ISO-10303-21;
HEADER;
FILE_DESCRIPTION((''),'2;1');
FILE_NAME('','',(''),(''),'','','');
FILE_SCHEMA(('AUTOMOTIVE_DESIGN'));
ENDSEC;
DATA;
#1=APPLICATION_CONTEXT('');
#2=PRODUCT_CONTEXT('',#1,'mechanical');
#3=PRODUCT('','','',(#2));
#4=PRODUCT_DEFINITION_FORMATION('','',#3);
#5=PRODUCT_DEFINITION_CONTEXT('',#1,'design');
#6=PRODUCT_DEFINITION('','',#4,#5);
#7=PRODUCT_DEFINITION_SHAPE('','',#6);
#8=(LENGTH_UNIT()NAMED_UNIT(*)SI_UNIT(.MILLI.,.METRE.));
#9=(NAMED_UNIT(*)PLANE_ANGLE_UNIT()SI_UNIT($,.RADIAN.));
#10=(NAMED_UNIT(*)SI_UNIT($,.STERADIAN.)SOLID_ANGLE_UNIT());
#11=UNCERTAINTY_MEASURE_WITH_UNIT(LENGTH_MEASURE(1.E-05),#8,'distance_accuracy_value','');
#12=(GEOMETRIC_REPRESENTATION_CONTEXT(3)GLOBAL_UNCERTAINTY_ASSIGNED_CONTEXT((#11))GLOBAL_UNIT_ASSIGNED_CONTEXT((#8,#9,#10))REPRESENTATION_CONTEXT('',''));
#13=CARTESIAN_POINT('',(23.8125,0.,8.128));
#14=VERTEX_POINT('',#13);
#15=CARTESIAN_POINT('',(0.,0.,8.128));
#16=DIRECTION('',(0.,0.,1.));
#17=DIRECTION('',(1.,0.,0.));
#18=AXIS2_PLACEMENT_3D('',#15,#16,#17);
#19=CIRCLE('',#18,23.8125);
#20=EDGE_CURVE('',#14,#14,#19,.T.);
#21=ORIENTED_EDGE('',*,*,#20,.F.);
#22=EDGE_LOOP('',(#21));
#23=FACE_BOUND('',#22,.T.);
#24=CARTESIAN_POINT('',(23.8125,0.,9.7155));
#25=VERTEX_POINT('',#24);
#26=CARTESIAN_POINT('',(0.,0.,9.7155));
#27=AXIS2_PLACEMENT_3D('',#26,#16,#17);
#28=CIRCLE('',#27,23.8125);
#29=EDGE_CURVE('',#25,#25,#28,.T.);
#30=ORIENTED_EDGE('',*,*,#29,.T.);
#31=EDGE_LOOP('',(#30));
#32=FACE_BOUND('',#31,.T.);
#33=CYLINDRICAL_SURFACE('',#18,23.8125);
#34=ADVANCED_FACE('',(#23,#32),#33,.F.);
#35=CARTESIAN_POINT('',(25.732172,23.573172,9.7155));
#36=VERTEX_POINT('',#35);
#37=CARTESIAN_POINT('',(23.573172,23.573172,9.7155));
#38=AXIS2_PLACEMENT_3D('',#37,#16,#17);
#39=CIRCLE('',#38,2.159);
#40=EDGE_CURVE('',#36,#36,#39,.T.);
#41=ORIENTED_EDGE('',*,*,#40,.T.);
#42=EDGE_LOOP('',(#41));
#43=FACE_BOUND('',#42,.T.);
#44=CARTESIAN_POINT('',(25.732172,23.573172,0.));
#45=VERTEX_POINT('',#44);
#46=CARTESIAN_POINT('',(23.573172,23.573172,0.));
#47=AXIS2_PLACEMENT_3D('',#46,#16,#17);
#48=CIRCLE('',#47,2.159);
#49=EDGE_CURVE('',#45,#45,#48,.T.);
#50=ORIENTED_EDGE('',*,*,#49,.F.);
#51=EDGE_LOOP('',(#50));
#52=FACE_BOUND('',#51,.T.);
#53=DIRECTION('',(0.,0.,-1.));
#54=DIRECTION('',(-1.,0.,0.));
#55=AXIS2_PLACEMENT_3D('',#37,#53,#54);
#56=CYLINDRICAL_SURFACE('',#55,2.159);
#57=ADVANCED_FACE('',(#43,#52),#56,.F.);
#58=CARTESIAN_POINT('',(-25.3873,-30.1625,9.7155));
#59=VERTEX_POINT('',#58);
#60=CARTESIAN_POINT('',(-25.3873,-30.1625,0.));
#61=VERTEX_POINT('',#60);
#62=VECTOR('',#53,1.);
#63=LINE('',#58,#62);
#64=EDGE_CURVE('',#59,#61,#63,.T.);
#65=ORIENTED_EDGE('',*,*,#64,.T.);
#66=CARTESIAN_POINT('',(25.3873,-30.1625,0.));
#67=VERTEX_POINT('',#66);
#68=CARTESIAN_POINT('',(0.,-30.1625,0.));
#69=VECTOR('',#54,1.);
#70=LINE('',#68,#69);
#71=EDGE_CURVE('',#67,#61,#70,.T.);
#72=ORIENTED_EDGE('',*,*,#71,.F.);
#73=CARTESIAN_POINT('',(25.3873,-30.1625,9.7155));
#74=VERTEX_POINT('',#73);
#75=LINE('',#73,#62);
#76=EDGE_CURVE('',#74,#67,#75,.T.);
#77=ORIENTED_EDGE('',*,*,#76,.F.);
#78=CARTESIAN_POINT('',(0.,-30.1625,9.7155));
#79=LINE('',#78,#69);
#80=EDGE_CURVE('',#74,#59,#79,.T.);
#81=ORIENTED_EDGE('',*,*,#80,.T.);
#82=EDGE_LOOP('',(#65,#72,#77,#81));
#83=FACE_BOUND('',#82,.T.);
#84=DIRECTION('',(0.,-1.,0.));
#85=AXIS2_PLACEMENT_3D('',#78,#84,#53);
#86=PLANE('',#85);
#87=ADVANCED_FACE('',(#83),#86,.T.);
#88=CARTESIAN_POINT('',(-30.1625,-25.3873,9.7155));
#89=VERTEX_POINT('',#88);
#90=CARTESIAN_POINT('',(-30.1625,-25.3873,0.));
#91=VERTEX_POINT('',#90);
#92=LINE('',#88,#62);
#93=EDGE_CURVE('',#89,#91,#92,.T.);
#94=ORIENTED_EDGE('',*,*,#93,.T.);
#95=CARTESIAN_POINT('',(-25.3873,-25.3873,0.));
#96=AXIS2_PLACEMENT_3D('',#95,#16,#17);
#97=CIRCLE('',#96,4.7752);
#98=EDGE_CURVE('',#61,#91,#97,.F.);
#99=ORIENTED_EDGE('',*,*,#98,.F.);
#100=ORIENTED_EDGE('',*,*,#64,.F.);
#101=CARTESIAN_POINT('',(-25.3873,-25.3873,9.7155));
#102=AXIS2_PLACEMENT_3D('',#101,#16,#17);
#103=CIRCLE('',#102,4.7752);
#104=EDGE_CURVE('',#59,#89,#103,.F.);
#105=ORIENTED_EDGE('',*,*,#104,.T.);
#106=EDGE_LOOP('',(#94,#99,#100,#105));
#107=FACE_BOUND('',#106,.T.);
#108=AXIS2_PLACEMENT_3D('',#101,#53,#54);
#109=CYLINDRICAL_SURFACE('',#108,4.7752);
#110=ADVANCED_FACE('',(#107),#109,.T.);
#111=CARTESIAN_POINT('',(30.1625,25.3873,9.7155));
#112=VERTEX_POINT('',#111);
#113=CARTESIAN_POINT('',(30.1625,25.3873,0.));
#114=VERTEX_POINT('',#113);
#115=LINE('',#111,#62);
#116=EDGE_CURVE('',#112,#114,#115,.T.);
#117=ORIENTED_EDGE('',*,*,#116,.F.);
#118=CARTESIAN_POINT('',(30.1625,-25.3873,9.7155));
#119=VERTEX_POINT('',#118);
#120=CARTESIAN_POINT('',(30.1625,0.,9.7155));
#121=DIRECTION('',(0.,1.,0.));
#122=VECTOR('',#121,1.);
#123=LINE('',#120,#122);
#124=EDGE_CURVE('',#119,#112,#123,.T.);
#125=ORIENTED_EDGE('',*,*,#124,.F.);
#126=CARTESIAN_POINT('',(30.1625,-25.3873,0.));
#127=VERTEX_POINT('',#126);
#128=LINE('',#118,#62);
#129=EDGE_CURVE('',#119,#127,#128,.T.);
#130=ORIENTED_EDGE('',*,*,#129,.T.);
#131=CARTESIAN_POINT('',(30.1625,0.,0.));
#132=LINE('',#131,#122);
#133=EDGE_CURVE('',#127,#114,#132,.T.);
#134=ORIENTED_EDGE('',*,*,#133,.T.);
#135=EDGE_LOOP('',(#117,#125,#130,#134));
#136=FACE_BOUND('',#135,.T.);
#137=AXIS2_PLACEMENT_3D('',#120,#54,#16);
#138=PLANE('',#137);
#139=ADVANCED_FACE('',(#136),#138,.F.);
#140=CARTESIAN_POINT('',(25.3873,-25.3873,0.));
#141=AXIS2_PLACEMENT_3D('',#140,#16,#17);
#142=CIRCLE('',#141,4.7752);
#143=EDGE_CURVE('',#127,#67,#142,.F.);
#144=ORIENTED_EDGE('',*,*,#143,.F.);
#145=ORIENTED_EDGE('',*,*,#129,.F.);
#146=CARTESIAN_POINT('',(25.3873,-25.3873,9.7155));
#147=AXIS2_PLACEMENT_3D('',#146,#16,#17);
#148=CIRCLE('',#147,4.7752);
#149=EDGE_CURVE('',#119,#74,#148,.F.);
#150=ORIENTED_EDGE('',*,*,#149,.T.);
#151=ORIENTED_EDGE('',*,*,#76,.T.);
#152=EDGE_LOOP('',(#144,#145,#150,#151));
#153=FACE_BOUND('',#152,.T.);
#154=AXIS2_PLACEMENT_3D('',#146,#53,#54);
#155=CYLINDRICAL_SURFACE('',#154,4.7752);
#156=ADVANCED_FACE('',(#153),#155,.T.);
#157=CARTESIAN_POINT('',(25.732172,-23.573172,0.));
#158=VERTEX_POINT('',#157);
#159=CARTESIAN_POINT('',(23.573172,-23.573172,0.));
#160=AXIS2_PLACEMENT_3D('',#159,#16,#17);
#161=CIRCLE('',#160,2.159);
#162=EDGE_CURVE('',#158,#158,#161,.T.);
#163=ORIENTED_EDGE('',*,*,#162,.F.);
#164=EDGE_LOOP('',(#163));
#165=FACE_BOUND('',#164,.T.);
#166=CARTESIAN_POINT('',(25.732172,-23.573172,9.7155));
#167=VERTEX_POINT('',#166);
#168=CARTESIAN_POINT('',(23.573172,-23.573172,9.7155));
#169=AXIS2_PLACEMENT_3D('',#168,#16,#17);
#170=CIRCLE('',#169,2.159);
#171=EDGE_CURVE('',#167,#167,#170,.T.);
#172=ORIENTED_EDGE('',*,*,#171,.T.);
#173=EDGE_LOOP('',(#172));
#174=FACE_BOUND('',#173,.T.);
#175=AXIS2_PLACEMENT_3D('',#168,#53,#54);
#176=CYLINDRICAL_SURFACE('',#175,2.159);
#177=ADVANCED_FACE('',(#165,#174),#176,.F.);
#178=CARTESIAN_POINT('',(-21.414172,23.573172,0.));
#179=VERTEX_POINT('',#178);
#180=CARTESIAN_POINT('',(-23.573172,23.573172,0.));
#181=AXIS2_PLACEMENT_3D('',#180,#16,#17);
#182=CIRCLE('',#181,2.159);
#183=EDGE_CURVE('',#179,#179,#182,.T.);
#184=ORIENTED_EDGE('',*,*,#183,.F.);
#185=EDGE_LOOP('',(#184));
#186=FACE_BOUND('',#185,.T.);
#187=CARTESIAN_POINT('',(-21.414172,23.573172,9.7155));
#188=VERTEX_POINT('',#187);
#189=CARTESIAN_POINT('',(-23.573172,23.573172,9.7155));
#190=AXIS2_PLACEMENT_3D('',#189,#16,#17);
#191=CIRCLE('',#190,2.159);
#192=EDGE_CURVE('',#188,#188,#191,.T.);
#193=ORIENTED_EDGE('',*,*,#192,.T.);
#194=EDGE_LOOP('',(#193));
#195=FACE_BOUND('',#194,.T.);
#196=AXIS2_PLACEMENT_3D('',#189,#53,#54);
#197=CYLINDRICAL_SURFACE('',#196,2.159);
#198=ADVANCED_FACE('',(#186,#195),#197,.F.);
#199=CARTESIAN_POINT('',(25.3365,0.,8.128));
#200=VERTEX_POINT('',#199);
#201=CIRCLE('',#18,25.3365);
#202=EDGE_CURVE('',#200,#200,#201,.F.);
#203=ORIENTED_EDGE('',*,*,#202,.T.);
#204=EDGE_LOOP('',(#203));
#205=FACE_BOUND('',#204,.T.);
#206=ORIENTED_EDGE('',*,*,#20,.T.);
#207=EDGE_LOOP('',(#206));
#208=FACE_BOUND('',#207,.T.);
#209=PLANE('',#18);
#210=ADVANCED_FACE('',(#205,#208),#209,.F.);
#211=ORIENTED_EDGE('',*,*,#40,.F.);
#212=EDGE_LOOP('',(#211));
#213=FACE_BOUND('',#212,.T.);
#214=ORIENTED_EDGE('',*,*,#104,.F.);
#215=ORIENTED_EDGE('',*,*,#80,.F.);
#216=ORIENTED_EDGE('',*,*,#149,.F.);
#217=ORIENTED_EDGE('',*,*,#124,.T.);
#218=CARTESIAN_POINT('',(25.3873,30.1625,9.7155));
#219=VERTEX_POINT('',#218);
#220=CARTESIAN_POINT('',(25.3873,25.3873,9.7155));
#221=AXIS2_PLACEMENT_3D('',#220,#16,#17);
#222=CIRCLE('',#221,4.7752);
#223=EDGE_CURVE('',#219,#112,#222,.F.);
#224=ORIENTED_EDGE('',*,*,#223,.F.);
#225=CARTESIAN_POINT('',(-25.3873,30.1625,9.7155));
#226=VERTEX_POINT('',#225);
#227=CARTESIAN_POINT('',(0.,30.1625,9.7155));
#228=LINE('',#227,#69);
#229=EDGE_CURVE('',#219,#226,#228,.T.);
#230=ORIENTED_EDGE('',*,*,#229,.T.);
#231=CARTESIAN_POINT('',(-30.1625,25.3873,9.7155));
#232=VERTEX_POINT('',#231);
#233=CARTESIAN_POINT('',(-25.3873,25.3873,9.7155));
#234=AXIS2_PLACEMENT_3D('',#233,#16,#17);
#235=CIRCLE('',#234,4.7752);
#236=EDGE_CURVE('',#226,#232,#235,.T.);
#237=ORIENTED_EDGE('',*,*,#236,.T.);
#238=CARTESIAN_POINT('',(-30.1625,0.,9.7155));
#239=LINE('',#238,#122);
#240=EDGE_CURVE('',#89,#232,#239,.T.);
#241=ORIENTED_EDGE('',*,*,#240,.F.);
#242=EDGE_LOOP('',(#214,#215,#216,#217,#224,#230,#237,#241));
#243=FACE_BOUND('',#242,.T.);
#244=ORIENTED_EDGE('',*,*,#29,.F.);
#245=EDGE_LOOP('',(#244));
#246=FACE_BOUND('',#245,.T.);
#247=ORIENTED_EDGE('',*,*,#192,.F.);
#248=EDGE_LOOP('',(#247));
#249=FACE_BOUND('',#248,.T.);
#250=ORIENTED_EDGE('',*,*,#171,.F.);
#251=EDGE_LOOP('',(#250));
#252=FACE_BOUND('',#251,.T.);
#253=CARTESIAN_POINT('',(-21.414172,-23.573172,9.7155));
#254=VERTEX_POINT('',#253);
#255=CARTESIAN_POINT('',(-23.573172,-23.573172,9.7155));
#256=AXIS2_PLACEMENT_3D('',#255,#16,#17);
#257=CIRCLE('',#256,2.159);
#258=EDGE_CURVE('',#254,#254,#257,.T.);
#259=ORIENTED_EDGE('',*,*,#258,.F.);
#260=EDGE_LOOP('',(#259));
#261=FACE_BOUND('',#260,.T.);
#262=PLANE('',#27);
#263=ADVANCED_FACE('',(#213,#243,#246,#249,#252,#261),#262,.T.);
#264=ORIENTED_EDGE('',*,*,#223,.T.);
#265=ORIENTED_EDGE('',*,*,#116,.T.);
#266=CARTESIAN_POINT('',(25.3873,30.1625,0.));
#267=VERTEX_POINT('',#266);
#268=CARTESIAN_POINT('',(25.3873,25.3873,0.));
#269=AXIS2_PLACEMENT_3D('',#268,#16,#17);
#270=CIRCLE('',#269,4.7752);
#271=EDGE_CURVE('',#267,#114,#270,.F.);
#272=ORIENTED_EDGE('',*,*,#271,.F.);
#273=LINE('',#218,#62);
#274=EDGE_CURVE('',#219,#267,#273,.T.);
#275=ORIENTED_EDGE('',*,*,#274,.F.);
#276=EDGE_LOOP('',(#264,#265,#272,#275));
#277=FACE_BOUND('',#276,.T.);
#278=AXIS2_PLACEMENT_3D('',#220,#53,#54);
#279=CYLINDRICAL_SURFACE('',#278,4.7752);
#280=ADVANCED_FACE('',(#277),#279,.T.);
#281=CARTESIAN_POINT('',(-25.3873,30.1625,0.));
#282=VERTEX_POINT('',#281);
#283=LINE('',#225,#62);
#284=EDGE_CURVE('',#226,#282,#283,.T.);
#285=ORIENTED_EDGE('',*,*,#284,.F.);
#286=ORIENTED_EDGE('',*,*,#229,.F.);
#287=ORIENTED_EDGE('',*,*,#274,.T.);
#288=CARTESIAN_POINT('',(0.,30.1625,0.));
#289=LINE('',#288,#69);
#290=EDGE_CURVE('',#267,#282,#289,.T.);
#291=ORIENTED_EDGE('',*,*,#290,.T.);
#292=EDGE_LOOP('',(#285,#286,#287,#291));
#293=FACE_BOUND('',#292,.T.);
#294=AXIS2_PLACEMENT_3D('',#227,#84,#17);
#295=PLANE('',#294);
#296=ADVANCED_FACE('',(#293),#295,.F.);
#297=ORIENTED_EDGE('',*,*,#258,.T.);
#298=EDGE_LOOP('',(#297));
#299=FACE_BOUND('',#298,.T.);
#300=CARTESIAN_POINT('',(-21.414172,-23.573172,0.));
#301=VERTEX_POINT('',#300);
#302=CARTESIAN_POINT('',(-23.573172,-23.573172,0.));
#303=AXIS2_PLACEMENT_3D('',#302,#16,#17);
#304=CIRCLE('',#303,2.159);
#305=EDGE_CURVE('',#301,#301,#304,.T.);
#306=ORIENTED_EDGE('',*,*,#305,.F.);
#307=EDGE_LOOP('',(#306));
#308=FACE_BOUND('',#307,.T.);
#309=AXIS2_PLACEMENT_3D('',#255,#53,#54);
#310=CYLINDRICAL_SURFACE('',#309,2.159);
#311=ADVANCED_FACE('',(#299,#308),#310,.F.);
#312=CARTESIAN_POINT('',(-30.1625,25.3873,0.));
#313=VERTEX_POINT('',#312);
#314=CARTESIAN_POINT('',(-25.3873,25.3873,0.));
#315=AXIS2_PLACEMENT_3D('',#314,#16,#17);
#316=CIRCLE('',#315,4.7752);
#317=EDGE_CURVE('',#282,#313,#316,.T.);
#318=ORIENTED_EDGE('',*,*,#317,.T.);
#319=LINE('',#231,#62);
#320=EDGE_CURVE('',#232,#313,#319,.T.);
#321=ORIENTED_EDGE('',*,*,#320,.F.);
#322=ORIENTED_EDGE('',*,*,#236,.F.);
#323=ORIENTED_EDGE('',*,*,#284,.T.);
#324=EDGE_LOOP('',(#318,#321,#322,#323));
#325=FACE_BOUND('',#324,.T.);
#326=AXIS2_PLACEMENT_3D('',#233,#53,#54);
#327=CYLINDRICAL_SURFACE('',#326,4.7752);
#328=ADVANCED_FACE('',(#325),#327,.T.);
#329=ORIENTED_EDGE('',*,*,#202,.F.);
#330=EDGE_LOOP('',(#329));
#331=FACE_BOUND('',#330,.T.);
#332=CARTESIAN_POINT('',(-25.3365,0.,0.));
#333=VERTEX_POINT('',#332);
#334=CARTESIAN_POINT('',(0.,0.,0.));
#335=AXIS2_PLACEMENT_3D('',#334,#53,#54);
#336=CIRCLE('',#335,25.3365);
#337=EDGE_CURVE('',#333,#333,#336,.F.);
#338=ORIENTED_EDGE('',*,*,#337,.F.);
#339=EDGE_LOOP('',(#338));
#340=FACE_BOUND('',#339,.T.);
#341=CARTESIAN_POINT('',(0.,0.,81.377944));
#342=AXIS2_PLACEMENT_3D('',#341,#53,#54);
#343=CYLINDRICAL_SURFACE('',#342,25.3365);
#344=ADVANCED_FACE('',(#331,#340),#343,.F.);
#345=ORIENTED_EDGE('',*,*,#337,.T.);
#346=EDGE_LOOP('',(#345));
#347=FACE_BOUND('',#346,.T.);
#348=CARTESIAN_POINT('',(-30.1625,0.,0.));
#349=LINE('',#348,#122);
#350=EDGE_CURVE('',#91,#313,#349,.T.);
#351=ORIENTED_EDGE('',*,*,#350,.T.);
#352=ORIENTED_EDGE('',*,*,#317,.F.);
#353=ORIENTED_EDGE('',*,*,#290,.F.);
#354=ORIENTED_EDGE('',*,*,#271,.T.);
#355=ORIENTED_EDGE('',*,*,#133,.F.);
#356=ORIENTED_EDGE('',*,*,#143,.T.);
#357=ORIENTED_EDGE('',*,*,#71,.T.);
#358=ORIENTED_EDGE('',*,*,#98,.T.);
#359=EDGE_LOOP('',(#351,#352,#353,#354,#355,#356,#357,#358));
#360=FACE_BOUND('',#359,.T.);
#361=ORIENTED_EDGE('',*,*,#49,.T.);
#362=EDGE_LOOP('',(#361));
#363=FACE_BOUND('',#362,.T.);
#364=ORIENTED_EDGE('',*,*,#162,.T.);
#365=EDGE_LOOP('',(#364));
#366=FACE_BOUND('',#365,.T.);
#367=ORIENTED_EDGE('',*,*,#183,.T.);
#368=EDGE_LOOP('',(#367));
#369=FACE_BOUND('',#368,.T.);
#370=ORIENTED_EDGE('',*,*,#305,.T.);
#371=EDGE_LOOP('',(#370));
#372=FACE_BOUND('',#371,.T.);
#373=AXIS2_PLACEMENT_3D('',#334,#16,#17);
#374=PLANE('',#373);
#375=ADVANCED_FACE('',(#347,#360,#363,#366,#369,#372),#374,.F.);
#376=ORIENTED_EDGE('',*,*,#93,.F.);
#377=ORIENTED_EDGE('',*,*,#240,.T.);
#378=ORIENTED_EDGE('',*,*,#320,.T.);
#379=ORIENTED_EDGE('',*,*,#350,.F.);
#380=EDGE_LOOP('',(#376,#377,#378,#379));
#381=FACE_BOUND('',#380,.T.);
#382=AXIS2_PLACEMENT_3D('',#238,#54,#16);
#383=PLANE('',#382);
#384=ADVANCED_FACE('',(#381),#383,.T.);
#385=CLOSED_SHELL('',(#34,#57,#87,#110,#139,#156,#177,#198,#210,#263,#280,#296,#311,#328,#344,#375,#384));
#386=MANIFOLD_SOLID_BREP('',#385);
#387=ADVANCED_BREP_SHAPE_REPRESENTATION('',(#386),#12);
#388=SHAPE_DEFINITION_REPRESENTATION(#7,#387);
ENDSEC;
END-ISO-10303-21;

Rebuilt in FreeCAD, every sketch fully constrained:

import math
import FreeCAD as App
import Part
import Sketcher
from FreeCAD import Vector
Q = App.Units.Quantity

doc = App.newDocument("Part")
body = doc.addObject("PartDesign::Body", "Body")

# Sketch on XY plane
sketch1 = body.newObject("Sketcher::SketchObject", "Sketch")
sketch1.AttachmentSupport = (doc.getObject("XY_Plane"), [""])
sketch1.MapMode = "FlatFace"
sketch1.addGeometry(Part.LineSegment(Vector(-30.2, 25.4, 0), Vector(-30.2, -25.4, 0)), False)
sketch1.addGeometry(Part.ArcOfCircle(Part.Circle(Vector(-25.4, -25.4, 0), Vector(0, 0, 1), 4.8), math.radians(180), math.radians(270)), False)
sketch1.addGeometry(Part.LineSegment(Vector(-25.4, -30.2, 0), Vector(25.4, -30.2, 0)), False)
sketch1.addGeometry(Part.ArcOfCircle(Part.Circle(Vector(25.4, -25.4, 0), Vector(0, 0, 1), 4.8), math.radians(-90), math.radians(0)), False)
sketch1.addGeometry(Part.LineSegment(Vector(30.2, -25.4, 0), Vector(30.2, 25.4, 0)), False)
sketch1.addGeometry(Part.ArcOfCircle(Part.Circle(Vector(25.4, 25.4, 0), Vector(0, 0, 1), 4.8), math.radians(0), math.radians(90)), False)
sketch1.addGeometry(Part.LineSegment(Vector(25.4, 30.2, 0), Vector(-25.4, 30.2, 0)), False)
sketch1.addGeometry(Part.ArcOfCircle(Part.Circle(Vector(-25.4, 25.4, 0), Vector(0, 0, 1), 4.8), math.radians(90), math.radians(180)), False)
sketch1.addGeometry(Part.Circle(Vector(23.6, -23.6, 0), Vector(0, 0, 1), 2.2), False)
sketch1.addGeometry(Part.Circle(Vector(-23.6, -23.6, 0), Vector(0, 0, 1), 2.2), False)
sketch1.addGeometry(Part.Circle(Vector(23.6, 23.6, 0), Vector(0, 0, 1), 2.2), False)
sketch1.addGeometry(Part.Circle(Vector(0, 0, 0), Vector(0, 0, 1), 28.5), False)
sketch1.addGeometry(Part.Circle(Vector(-23.6, 23.6, 0), Vector(0, 0, 1), 2.2), False)
sketch1.addConstraint(Sketcher.Constraint("Tangent", 0, 2, 1, 1))
sketch1.addConstraint(Sketcher.Constraint("Tangent", 1, 2, 2, 1))
sketch1.addConstraint(Sketcher.Constraint("Tangent", 2, 2, 3, 1))
sketch1.addConstraint(Sketcher.Constraint("Tangent", 3, 2, 4, 1))
sketch1.addConstraint(Sketcher.Constraint("Tangent", 4, 2, 5, 1))
sketch1.addConstraint(Sketcher.Constraint("Tangent", 5, 2, 6, 1))
sketch1.addConstraint(Sketcher.Constraint("Tangent", 6, 2, 7, 1))
sketch1.addConstraint(Sketcher.Constraint("Tangent", 7, 2, 0, 1))
sketch1.addConstraint(Sketcher.Constraint("Vertical", 0))
sketch1.addConstraint(Sketcher.Constraint("Horizontal", 2))
sketch1.addConstraint(Sketcher.Constraint("Vertical", 4))
sketch1.addConstraint(Sketcher.Constraint("Horizontal", 6))
sketch1.addConstraint(Sketcher.Constraint("Coincident", 11, 3, -1, 1))
sketch1.addConstraint(Sketcher.Constraint("Equal", 1, 3))
sketch1.addConstraint(Sketcher.Constraint("Equal", 3, 5))
sketch1.addConstraint(Sketcher.Constraint("Equal", 5, 7))
sketch1.addConstraint(Sketcher.Constraint("Equal", 8, 9))
sketch1.addConstraint(Sketcher.Constraint("Equal", 9, 10))
sketch1.addConstraint(Sketcher.Constraint("Equal", 10, 12))
sketch1.addConstraint(Sketcher.Constraint("Symmetric", 1, 3, 5, 3, -1, 1))
sketch1.addConstraint(Sketcher.Constraint("Symmetric", 9, 3, 10, 3, -1, 1))
sketch1.addConstraint(Sketcher.Constraint("Symmetric", 8, 3, 12, 3, -1, 1))
sketch1.addConstraint(Sketcher.Constraint("Symmetric", 8, 3, 9, 3, -2))
sketch1.addConstraint(Sketcher.Constraint("Equal", 6, 0))
sketch1.addConstraint(Sketcher.Constraint("Diameter", 8, Q("0.17 in")))
sketch1.addConstraint(Sketcher.Constraint("Diameter", 11, Q("2.245 in")))
sketch1.addConstraint(Sketcher.Constraint("Radius", 1, Q("0.188 in")))
sketch1.addConstraint(Sketcher.Constraint("DistanceX", 2, 1, 2, 2, Q("1.999 in")))
sketch1.addConstraint(Sketcher.Constraint("DistanceX", -1, 1, 8, 3, 23.573172))
sketch1.addConstraint(Sketcher.Constraint("DistanceY", 8, 3, -1, 1, 23.573172))
pad1 = body.newObject("PartDesign::Pad", "Pad")
pad1.Profile = sketch1
pad1.Length = Q("0.3825 in")

# Sketch on XY plane
sketch2 = body.newObject("Sketcher::SketchObject", "Sketch001")
sketch2.AttachmentSupport = (doc.getObject("XY_Plane"), [""])
sketch2.MapMode = "FlatFace"
sketch2.addGeometry(Part.Circle(Vector(0, 0, 0), Vector(0, 0, 1), 29), False)
sketch2.addGeometry(Part.Circle(Vector(0, 0, 0), Vector(0, 0, 1), 24), False)
sketch2.addConstraint(Sketcher.Constraint("Coincident", 0, 3, -1, 1))
sketch2.addConstraint(Sketcher.Constraint("Coincident", 1, 3, -1, 1))
sketch2.addConstraint(Sketcher.Constraint("Diameter", 0, Q("2.245 in")))
sketch2.addConstraint(Sketcher.Constraint("Diameter", 1, Q("1.875 in")))
pad2 = body.newObject("PartDesign::Pad", "Pad001")
pad2.Profile = sketch2
pad2.Length = Q("0.3825 in")

# Sketch on XY plane
sketch3 = body.newObject("Sketcher::SketchObject", "Sketch002")
sketch3.AttachmentSupport = (doc.getObject("XY_Plane"), [""])
sketch3.MapMode = "FlatFace"
sketch3.addGeometry(Part.Circle(Vector(0, 0, 0), Vector(0, 0, 1), 29), False)
sketch3.addGeometry(Part.Circle(Vector(0, 0, 0), Vector(0, 0, 1), 24), False)
sketch3.addConstraint(Sketcher.Constraint("Coincident", 0, 3, -1, 1))
sketch3.addConstraint(Sketcher.Constraint("Coincident", 1, 3, -1, 1))
sketch3.addConstraint(Sketcher.Constraint("Diameter", 0, Q("2.245 in")))
sketch3.addConstraint(Sketcher.Constraint("Diameter", 1, Q("1.875 in")))
pad3 = body.newObject("PartDesign::Pad", "Pad002")
pad3.Profile = sketch3
pad3.Length = Q("0.25 in")
pad3.Reversed = True

# Sketch on XY plane
sketch4 = body.newObject("Sketcher::SketchObject", "Sketch003")
sketch4.AttachmentSupport = (doc.getObject("XY_Plane"), [""])
sketch4.MapMode = "FlatFace"
sketch4.addGeometry(Part.Circle(Vector(0, 0, 0), Vector(0, 0, 1), 25), False)
sketch4.addConstraint(Sketcher.Constraint("Coincident", 0, 3, -1, 1))
sketch4.addConstraint(Sketcher.Constraint("Diameter", 0, Q("1.995 in")))
pocket1 = body.newObject("PartDesign::Pocket", "Pocket")
pocket1.Profile = sketch4
pocket1.Type = "ThroughAll"
pocket1.Midplane = True

# Sketch on XY plane
sketch5 = body.newObject("Sketcher::SketchObject", "Sketch004")
sketch5.AttachmentSupport = (doc.getObject("XY_Plane"), [""])
sketch5.MapMode = "FlatFace"
sketch5.addGeometry(Part.Circle(Vector(0, 0, 0), Vector(0, 0, 1), 29), False)
sketch5.addConstraint(Sketcher.Constraint("Coincident", 0, 3, -1, 1))
sketch5.addConstraint(Sketcher.Constraint("Diameter", 0, Q("2.245 in")))
pocket2 = body.newObject("PartDesign::Pocket", "Pocket001")
pocket2.Profile = sketch5
pocket2.Type = "ThroughAll"

# Sketch on XY plane
sketch6 = body.newObject("Sketcher::SketchObject", "Sketch005")
sketch6.AttachmentSupport = (doc.getObject("XY_Plane"), [""])
sketch6.MapMode = "FlatFace"
sketch6.AttachmentOffset = App.Placement(Vector(0, 0, 0.3825 * 25.4), App.Rotation())
sketch6.addGeometry(Part.Circle(Vector(0, 0, 0), Vector(0, 0, 1), 25), False)
sketch6.addGeometry(Part.Circle(Vector(0, 0, 0), Vector(0, 0, 1), 24), False)
sketch6.addConstraint(Sketcher.Constraint("Coincident", 0, 3, -1, 1))
sketch6.addConstraint(Sketcher.Constraint("Coincident", 1, 3, -1, 1))
sketch6.addConstraint(Sketcher.Constraint("Diameter", 0, Q("1.995 in")))
sketch6.addConstraint(Sketcher.Constraint("Diameter", 1, Q("1.875 in")))
pad4 = body.newObject("PartDesign::Pad", "Pad003")
pad4.Profile = sketch6
pad4.Length = Q("0.0625 in")
pad4.Reversed = True

doc.recompute()
